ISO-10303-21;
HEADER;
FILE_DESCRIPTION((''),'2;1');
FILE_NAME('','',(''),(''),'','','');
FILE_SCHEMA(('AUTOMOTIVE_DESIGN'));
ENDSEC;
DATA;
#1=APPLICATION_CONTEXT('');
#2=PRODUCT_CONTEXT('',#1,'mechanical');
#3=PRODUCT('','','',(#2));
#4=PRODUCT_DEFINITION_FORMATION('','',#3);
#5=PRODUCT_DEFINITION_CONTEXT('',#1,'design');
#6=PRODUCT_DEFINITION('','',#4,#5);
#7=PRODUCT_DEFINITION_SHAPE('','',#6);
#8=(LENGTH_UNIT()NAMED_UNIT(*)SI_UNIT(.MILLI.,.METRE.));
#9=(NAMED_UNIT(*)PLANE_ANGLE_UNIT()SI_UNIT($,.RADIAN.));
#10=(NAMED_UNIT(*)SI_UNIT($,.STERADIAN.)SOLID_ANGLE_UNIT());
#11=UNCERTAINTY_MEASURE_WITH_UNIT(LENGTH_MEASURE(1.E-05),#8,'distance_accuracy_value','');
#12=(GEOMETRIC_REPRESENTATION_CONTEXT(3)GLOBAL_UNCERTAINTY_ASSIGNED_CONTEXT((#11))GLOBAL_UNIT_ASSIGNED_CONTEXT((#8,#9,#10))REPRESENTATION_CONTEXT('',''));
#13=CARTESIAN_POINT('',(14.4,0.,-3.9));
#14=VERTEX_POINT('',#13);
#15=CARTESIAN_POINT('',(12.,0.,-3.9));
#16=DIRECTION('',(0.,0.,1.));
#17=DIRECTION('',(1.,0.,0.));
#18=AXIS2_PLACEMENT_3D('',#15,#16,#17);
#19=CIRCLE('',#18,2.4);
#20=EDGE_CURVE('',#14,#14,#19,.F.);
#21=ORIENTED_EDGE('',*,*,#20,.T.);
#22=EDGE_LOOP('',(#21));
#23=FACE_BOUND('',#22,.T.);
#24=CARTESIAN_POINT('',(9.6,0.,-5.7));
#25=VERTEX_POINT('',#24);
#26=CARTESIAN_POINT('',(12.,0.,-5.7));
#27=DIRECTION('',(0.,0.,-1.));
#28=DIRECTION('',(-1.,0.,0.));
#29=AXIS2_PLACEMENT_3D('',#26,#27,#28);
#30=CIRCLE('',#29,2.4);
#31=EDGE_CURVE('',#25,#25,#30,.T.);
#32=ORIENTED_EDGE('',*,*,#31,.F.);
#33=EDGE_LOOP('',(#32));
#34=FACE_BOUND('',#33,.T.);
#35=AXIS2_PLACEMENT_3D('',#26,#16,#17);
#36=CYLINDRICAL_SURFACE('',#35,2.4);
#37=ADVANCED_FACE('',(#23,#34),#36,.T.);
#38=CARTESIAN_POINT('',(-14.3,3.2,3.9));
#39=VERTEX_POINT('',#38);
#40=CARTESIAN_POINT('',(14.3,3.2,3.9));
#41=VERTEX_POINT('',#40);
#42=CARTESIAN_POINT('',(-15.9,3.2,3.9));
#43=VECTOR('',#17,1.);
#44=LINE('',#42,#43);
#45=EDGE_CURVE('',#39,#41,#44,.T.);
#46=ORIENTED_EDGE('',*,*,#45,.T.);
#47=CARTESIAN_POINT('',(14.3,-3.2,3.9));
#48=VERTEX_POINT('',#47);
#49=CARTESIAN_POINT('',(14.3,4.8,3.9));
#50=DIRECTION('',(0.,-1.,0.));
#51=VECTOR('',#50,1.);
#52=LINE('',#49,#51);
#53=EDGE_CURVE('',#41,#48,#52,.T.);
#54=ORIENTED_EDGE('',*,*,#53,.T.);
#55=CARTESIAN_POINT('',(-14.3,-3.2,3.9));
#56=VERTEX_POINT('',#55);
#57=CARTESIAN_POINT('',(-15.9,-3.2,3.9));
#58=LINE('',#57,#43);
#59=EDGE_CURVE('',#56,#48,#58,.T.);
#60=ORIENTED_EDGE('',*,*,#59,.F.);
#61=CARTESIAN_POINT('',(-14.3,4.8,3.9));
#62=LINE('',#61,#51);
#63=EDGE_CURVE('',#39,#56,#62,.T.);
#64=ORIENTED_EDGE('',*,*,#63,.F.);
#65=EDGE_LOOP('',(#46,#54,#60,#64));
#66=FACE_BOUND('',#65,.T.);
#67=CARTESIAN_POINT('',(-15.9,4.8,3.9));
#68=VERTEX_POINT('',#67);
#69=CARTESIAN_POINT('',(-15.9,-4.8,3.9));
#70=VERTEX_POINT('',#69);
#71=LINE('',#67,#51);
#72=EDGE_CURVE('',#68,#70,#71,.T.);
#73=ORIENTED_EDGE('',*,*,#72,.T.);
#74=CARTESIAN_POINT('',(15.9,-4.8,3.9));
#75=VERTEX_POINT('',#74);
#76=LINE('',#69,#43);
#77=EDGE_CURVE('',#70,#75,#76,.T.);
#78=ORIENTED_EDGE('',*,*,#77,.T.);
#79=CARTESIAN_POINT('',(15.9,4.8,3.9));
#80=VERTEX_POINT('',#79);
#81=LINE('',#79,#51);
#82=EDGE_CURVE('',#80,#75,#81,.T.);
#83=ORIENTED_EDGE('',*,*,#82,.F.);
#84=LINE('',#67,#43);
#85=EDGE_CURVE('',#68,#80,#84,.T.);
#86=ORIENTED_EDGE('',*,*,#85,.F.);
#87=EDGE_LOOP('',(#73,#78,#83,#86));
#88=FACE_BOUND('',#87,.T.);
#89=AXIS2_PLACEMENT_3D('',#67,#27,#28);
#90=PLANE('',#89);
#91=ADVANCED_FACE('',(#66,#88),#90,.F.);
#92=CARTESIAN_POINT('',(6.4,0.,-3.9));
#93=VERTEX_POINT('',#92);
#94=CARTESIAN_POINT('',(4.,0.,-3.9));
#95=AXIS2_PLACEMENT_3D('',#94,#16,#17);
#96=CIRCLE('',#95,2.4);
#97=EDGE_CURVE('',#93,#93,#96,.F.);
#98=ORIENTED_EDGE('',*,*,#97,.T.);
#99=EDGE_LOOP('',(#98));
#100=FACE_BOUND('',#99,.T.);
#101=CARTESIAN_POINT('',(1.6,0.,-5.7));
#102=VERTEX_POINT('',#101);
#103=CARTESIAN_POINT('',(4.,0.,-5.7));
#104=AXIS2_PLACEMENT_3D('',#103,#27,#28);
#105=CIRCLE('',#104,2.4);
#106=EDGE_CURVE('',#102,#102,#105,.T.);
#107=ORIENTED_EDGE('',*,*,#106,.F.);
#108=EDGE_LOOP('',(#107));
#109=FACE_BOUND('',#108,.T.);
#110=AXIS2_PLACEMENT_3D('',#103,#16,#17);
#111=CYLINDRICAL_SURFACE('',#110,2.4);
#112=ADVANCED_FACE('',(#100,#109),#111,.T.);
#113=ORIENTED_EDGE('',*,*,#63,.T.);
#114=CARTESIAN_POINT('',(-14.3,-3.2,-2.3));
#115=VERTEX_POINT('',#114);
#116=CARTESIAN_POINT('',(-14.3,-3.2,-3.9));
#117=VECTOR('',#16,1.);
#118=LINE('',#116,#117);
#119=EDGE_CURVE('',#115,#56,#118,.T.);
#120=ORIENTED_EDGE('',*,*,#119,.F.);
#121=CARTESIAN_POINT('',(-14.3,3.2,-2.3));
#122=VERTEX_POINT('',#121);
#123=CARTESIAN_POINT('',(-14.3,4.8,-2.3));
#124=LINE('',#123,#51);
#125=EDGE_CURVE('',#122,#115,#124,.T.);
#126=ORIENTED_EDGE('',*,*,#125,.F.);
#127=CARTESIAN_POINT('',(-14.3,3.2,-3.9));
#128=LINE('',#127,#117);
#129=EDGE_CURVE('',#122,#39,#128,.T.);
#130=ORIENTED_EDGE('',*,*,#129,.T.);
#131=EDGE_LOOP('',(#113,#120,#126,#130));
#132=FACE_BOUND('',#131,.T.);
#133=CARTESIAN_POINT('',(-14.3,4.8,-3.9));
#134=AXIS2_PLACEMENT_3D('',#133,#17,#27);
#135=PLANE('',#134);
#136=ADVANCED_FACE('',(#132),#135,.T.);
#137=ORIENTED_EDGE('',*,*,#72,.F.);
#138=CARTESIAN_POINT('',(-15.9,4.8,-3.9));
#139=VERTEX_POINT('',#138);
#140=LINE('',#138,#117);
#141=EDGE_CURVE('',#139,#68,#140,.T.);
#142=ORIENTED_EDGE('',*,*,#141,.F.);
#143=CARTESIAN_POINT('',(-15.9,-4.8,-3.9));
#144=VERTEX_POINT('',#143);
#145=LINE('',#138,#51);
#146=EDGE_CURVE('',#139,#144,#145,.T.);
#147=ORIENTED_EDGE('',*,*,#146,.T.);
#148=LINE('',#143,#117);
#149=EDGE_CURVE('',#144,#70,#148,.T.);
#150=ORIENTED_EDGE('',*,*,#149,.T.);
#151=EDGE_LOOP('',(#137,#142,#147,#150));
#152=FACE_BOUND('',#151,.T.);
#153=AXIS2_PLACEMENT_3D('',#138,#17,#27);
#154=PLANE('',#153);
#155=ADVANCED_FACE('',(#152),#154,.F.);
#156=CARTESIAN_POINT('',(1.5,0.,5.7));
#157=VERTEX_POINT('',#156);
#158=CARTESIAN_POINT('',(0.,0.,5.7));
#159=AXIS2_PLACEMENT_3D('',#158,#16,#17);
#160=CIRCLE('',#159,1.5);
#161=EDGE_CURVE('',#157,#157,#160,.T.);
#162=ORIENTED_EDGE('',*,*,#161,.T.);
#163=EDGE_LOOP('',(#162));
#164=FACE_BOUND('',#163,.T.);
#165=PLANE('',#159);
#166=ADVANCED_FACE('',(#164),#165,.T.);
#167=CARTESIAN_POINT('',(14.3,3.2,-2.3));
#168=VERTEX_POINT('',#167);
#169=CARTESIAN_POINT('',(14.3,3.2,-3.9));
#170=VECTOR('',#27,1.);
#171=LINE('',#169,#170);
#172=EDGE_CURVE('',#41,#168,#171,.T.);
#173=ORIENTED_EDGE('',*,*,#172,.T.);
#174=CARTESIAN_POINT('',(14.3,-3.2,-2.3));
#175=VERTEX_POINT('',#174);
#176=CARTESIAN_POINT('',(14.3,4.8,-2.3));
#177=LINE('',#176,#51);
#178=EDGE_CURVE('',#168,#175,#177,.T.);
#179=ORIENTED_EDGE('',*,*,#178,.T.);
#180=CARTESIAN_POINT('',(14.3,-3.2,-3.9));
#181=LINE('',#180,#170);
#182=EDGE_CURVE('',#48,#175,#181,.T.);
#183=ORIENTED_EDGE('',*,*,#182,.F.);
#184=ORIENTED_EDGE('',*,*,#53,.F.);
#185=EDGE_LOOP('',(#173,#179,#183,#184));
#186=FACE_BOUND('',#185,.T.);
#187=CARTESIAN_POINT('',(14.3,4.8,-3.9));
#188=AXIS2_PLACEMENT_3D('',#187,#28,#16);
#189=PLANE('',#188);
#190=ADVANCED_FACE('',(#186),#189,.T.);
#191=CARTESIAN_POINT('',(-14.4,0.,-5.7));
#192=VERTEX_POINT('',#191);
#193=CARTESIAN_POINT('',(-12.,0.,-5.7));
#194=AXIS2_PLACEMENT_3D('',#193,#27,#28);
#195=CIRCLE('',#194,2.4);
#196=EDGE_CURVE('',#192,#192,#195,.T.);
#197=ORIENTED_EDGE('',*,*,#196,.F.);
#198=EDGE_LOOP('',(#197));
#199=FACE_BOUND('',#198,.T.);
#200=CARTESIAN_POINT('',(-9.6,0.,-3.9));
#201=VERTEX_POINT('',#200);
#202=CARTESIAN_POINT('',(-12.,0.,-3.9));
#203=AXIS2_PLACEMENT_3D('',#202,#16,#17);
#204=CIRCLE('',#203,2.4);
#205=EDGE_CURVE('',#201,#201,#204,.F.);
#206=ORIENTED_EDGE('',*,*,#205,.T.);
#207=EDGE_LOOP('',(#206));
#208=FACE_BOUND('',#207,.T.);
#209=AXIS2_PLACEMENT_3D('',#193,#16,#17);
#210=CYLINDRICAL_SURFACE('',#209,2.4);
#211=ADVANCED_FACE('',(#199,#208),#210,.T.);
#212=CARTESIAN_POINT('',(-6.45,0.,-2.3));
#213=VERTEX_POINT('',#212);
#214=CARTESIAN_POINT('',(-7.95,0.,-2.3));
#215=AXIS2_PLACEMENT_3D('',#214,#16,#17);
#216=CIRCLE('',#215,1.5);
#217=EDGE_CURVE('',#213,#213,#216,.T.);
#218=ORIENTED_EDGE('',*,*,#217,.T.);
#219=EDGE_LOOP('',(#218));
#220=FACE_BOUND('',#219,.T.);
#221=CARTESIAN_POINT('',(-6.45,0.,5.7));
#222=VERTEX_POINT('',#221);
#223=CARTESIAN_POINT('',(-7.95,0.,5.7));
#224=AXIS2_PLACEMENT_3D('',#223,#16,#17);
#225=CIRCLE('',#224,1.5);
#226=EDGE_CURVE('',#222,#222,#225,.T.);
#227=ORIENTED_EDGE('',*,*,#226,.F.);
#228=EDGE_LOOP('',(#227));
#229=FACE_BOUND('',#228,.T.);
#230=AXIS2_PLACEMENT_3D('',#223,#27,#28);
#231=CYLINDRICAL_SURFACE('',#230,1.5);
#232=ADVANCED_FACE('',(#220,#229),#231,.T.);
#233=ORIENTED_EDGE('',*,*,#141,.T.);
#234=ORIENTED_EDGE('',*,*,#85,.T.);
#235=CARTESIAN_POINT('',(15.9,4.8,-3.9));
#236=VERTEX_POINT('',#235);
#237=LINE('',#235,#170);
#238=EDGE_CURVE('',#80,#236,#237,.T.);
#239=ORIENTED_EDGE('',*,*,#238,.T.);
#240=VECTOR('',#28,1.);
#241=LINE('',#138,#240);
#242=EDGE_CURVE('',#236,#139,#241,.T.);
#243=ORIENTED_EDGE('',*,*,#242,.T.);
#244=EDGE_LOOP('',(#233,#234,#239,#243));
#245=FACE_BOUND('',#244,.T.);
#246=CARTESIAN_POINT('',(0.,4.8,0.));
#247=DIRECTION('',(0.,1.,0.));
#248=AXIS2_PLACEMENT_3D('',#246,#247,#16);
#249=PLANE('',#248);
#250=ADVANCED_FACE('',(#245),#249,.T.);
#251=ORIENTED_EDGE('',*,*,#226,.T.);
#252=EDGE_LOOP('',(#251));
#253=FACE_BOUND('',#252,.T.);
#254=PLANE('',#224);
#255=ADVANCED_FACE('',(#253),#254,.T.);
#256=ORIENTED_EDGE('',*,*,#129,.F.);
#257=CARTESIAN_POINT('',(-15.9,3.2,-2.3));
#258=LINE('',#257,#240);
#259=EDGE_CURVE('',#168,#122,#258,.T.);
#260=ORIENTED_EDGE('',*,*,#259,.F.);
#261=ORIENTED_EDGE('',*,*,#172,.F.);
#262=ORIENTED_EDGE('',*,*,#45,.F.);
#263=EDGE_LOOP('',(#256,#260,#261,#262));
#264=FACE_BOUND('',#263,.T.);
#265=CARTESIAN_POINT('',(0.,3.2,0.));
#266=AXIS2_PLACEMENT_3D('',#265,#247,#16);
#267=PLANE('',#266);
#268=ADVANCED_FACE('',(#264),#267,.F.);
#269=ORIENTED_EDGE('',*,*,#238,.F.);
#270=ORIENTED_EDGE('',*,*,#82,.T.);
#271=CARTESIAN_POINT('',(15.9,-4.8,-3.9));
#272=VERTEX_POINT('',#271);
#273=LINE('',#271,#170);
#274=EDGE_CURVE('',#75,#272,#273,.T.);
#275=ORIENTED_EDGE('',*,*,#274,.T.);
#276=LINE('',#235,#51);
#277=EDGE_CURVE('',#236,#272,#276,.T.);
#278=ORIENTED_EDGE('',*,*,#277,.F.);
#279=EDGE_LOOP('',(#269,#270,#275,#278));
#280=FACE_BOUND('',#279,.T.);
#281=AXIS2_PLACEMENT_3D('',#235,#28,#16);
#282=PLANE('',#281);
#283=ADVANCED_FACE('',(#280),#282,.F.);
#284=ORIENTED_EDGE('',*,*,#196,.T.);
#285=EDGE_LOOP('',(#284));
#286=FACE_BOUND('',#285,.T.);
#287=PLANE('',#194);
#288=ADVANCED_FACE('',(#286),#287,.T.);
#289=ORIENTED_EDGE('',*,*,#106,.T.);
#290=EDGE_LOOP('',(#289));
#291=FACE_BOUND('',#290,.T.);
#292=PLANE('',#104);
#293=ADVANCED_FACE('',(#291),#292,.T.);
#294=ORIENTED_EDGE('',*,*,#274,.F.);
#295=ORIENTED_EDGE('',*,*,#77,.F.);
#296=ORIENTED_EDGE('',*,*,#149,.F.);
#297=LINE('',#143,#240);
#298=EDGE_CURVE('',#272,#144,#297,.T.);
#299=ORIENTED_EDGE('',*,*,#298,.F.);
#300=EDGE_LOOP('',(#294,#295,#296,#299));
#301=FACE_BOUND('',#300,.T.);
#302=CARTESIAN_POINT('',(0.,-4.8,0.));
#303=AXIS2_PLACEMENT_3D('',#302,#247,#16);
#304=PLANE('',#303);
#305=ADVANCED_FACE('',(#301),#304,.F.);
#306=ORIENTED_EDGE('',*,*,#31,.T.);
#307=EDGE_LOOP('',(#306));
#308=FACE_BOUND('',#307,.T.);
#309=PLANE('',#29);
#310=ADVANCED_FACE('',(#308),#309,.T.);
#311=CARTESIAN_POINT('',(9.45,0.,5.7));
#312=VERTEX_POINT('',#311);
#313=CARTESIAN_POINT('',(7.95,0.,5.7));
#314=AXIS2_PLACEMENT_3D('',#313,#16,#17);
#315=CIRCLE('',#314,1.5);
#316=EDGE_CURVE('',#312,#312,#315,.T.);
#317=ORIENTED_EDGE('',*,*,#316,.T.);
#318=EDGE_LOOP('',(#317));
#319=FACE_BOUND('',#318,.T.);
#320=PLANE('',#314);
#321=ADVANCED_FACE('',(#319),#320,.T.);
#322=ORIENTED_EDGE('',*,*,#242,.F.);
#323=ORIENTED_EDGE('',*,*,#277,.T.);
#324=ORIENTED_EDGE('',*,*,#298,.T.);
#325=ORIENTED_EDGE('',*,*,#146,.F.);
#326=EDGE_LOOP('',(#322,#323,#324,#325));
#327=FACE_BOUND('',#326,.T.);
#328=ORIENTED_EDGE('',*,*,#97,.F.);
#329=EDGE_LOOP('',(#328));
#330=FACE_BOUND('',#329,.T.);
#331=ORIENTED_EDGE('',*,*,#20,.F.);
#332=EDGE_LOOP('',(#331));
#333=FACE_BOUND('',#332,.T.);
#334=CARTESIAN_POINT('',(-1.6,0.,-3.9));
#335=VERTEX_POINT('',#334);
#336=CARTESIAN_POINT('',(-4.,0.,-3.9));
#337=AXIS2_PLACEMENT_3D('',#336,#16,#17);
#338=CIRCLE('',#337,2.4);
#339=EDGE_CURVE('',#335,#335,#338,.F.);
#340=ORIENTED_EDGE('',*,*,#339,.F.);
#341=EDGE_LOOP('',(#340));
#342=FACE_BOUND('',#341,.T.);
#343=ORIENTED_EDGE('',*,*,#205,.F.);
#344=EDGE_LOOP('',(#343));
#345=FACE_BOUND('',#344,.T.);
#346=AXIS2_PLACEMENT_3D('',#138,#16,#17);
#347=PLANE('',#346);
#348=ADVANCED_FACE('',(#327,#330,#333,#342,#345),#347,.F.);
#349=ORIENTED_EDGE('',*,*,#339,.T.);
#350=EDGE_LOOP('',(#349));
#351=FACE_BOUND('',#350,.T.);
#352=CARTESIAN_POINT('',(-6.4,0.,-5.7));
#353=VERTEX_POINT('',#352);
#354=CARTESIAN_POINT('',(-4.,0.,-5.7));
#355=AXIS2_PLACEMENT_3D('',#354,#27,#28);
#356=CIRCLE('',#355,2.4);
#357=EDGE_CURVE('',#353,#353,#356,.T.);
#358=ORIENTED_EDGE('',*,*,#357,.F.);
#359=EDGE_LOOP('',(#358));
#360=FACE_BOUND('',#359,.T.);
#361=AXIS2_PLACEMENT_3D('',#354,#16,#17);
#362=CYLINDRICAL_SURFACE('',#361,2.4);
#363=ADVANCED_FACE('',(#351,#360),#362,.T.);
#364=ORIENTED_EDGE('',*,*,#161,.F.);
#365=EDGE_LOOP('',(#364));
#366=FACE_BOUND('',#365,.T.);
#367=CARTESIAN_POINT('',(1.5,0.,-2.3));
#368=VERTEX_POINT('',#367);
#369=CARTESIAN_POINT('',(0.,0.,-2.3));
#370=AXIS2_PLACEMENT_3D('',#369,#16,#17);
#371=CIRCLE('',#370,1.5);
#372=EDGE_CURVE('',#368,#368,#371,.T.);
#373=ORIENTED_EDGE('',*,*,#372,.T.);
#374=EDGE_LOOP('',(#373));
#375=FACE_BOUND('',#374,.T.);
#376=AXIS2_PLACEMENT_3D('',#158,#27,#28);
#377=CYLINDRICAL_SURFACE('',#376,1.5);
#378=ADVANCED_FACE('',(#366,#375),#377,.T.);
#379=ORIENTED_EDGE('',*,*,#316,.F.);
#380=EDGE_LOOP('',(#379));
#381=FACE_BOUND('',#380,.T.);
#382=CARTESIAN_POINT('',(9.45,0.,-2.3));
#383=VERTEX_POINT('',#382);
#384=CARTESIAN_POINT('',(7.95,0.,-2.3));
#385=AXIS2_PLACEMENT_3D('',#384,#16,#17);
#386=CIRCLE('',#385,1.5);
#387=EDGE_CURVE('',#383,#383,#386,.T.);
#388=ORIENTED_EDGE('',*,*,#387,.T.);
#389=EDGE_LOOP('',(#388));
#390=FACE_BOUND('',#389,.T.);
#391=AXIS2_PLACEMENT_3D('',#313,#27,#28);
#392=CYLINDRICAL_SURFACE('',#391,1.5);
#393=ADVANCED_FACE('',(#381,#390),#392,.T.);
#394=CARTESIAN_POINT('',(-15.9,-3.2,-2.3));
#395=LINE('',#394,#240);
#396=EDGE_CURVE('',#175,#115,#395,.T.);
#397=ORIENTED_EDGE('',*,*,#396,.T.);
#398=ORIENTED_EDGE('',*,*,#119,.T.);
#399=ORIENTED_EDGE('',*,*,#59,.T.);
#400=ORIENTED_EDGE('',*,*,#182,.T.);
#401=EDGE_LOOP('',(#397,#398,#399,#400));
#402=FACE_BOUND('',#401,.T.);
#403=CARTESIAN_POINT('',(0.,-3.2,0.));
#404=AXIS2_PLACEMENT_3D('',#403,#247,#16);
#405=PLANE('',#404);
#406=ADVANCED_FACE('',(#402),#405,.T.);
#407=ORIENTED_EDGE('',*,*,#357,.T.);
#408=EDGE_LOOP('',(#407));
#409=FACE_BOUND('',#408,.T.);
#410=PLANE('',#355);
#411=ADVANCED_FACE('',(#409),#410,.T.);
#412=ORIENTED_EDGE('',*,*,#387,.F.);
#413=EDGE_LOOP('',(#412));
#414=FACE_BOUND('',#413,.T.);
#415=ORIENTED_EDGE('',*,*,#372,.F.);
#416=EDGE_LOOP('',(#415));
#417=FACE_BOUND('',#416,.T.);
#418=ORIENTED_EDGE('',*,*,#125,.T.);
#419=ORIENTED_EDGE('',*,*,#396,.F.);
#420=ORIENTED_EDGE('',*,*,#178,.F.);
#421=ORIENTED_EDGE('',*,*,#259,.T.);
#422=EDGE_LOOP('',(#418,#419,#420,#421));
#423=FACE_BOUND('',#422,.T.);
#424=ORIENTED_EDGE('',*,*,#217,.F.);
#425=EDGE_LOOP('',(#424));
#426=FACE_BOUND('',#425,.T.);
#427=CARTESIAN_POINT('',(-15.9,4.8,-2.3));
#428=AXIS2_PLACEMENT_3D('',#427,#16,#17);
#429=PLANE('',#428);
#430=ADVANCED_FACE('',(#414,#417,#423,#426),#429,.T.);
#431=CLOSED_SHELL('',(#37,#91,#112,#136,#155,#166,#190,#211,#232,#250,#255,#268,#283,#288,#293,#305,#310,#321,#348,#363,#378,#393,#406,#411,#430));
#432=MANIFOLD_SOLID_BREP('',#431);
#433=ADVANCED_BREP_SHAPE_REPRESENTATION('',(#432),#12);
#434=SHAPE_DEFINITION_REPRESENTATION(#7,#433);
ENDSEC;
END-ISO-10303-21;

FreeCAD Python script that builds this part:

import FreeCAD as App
import Part
import Sketcher
Q = App.Units.Quantity


def faces_at(feature, points):
    """Names of the faces that lie closest to the given points."""
    faces = feature.Shape.Faces
    near = lambda p: min(range(len(faces)), key=lambda i: faces[i].distToShape(Part.Vertex(*p))[0])
    return sorted({f"Face{near(p) + 1}" for p in points})

doc = App.newDocument("Part")
body = doc.addObject("PartDesign::Body", "Body")

sketch1 = body.newObject("Sketcher::SketchObject", "Sketch")
sketch1.AttachmentSupport = (doc.getObject("XZ_Plane"), [""])
sketch1.MapMode = "FlatFace"
sketch1.addGeometry([
    Part.LineSegment(App.Vector(-16, -4, 0), App.Vector(-16, 4, 0)),
    Part.LineSegment(App.Vector(-16, 4, 0), App.Vector(16, 4, 0)),
    Part.LineSegment(App.Vector(16, 4, 0), App.Vector(16, -4, 0)),
    Part.LineSegment(App.Vector(16, -4, 0), App.Vector(-16, -4, 0)),
], False)
sketch1.addConstraint([
    Sketcher.Constraint("Coincident", 0, 2, 1, 1),
    Sketcher.Constraint("Coincident", 1, 2, 2, 1),
    Sketcher.Constraint("Coincident", 2, 2, 3, 1),
    Sketcher.Constraint("Coincident", 3, 2, 0, 1),
    Sketcher.Constraint("Vertical", 0),
    Sketcher.Constraint("Horizontal", 1),
    Sketcher.Constraint("Vertical", 2),
    Sketcher.Constraint("Horizontal", 3),
    Sketcher.Constraint("Symmetric", 0, 2, 2, 2, -1, 1),
    Sketcher.Constraint("DistanceX", 1, 1, 1, 2, Q("31.8 mm")),
    Sketcher.Constraint("DistanceY", 0, 1, 0, 2, Q("7.8 mm")),
])
pad1 = body.newObject("PartDesign::Pad", "Pad")
pad1.Profile = sketch1
pad1.Length = 9.6
pad1.Midplane = True
doc.recompute()

thickness = body.newObject("PartDesign::Thickness", "Thickness")
thickness.Base = (pad1, faces_at(pad1, [(0, 0, 3.9)]))
thickness.Value = 1.6
thickness.Reversed = True
thickness.Join = "Intersection"

sketch2 = body.newObject("Sketcher::SketchObject", "Sketch001")
sketch2.AttachmentSupport = (doc.getObject("XY_Plane"), [""])
sketch2.MapMode = "FlatFace"
sketch2.AttachmentOffset = App.Placement(App.Vector(0, 0, -3.9), App.Rotation())
sketch2.addGeometry(Part.Circle(App.Vector(-12, 0, 0), App.Vector(0, 0, 1), 2.4), False)
sketch2.addConstraint([
    Sketcher.Constraint("PointOnObject", 0, 3, -1),
    Sketcher.Constraint("Diameter", 0, Q("4.8 mm")),
    Sketcher.Constraint("DistanceX", 0, 3, -1, 1, Q("12 mm")),
])
pad2 = body.newObject("PartDesign::Pad", "Pad001")
pad2.Profile = sketch2
pad2.Length = 1.8
pad2.Reversed = True
doc.recompute()

linearpattern = body.newObject("PartDesign::LinearPattern", "LinearPattern")
linearpattern.Originals = [pad2]
linearpattern.Direction = (doc.getObject("X_Axis"), [""])
linearpattern.Mode = "offset"
linearpattern.Offset = 8
linearpattern.Occurrences = 4
body.Tip = linearpattern

sketch3 = body.newObject("Sketcher::SketchObject", "Sketch002")
sketch3.AttachmentSupport = (doc.getObject("XY_Plane"), [""])
sketch3.MapMode = "FlatFace"
sketch3.AttachmentOffset = App.Placement(App.Vector(0, 0, -2.3), App.Rotation())
sketch3.addGeometry(Part.Circle(App.Vector(-8, 0, 0), App.Vector(0, 0, 1), 1.5), False)
sketch3.addConstraint([
    Sketcher.Constraint("PointOnObject", 0, 3, -1),
    Sketcher.Constraint("Diameter", 0, Q("3 mm")),
    Sketcher.Constraint("DistanceX", 0, 3, -1, 1, Q("7.95 mm")),
])
pad3 = body.newObject("PartDesign::Pad", "Pad002")
pad3.Profile = sketch3
pad3.Length = 8
doc.recompute()

linearpattern2 = body.newObject("PartDesign::LinearPattern", "LinearPattern001")
linearpattern2.Originals = [pad3]
linearpattern2.Direction = (doc.getObject("X_Axis"), [""])
linearpattern2.Mode = "offset"
linearpattern2.Offset = 7.95
linearpattern2.Occurrences = 3
body.Tip = linearpattern2

doc.recompute()
